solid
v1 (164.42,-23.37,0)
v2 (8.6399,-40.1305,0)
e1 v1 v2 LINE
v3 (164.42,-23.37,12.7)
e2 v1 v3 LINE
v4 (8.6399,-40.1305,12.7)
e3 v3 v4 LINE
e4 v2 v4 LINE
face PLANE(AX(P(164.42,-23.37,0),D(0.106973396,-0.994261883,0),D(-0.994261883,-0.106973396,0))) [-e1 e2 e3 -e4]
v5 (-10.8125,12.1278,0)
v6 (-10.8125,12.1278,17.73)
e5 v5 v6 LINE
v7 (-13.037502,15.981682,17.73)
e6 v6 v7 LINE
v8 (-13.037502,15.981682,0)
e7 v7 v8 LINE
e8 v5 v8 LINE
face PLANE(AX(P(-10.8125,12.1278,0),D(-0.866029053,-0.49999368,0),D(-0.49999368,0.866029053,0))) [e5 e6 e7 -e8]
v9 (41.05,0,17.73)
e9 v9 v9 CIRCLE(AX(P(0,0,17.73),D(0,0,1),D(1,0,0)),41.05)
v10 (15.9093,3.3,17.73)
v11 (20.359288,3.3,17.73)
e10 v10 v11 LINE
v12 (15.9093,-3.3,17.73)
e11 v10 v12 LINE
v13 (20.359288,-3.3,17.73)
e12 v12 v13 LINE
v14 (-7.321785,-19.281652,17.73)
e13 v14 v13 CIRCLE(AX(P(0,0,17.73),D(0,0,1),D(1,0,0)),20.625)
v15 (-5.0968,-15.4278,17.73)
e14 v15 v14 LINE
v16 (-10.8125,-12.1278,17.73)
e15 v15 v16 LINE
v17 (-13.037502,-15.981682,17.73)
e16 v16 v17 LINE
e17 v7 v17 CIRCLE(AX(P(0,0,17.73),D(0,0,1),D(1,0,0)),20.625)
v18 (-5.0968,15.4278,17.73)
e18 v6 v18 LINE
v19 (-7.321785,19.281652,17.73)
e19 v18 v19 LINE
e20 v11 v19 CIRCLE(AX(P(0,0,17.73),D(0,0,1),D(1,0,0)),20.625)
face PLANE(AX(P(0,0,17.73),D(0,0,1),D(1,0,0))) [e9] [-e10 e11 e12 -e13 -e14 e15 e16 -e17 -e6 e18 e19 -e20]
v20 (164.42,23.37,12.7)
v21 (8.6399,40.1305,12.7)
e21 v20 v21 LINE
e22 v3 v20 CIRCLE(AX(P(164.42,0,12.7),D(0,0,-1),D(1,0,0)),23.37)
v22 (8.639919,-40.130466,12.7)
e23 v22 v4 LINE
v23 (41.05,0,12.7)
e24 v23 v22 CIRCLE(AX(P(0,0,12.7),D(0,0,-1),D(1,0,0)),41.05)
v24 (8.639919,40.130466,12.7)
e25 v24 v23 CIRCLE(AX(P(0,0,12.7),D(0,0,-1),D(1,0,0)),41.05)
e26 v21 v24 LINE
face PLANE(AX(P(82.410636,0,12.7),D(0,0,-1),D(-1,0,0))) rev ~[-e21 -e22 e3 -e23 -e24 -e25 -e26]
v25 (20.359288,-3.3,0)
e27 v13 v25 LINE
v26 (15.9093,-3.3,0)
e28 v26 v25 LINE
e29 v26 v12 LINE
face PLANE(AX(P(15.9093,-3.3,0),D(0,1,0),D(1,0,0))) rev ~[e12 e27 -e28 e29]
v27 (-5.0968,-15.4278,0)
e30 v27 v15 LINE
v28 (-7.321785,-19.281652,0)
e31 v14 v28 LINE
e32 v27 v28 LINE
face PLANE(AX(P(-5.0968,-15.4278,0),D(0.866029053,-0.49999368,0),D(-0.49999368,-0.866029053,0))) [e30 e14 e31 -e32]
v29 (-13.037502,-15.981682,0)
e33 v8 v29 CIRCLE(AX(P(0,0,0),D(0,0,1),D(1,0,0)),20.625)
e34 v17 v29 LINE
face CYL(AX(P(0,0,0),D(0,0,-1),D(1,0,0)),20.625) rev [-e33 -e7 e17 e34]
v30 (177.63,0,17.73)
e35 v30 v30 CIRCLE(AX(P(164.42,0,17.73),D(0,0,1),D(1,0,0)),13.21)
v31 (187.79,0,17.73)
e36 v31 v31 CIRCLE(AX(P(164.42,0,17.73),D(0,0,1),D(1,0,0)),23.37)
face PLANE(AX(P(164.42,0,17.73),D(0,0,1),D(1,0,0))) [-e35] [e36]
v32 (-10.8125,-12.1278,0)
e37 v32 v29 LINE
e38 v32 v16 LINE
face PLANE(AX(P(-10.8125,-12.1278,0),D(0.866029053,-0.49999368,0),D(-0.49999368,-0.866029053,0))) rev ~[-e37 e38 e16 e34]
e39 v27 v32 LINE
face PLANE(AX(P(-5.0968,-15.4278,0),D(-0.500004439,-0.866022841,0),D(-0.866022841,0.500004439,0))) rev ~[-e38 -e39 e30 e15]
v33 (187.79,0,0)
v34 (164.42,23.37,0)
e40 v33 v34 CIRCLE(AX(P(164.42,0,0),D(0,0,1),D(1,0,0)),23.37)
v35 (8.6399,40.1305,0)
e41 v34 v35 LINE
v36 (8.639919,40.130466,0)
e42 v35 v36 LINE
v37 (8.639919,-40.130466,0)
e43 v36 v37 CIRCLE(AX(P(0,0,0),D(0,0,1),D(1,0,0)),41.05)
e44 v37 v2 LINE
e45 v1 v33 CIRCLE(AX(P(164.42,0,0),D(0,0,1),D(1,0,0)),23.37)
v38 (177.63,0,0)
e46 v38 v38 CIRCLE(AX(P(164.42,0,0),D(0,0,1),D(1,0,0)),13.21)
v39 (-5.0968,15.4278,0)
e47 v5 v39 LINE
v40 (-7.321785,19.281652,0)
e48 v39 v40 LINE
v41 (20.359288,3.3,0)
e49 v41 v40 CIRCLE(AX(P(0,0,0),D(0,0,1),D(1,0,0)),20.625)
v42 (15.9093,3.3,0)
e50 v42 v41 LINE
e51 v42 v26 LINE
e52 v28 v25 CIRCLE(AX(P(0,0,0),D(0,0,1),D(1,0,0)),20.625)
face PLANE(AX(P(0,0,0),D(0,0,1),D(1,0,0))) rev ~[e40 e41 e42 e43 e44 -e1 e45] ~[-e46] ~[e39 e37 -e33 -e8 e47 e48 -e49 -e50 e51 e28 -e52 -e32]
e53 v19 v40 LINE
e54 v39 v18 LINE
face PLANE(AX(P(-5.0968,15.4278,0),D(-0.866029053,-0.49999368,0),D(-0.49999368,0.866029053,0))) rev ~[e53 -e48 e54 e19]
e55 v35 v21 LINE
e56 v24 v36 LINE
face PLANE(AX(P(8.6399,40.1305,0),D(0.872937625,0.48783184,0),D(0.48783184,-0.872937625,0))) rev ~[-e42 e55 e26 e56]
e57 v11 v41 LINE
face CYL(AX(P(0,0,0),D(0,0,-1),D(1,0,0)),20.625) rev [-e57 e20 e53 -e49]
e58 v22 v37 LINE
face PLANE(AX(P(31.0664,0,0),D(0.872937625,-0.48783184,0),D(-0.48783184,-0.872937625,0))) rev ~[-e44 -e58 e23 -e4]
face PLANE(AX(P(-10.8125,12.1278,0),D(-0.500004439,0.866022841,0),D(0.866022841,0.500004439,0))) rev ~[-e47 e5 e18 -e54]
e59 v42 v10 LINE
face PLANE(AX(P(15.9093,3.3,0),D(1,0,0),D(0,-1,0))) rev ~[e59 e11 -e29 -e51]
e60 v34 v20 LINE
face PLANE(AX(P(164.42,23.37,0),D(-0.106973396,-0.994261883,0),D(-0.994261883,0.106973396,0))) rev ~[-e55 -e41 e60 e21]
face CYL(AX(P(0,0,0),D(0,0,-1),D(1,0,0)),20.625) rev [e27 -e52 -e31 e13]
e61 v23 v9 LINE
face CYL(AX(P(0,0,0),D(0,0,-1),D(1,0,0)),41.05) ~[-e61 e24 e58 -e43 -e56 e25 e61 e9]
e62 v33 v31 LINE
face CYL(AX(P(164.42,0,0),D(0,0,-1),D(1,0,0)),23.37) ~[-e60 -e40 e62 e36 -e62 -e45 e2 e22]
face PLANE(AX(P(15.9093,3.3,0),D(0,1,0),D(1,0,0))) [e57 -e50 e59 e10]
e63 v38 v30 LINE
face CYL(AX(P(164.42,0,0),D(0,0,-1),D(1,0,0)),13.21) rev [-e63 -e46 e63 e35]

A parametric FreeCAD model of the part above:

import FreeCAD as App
import Part
import Sketcher
Q = App.Units.Quantity


def add_polygon(sketch, points):
    """Adds a closed chain of lines whose ends are joined by coincident constraints."""
    first, n = sketch.GeometryCount, len(points)
    for a, b in zip(points, points[1:] + points[:1]):
        sketch.addGeometry(Part.LineSegment(App.Vector(*a, 0), App.Vector(*b, 0)), False)
    for i in range(n):
        sketch.addConstraint(Sketcher.Constraint("Coincident", first + i, 2, first + (i + 1) % n, 1))

doc = App.newDocument("Part")
body = doc.addObject("PartDesign::Body", "Body")
body.AllowCompound = True

# Sketch on XY plane
sketch1 = doc.addObject("Sketcher::SketchObject", "Sketch")
body.addObject(sketch1)
sketch1.AttachmentSupport = (doc.XY_Plane, [""])
sketch1.MapMode = "FlatFace"
sketch1.addGeometry([
    Part.Circle(App.Vector(0, 0, 0), App.Vector(0, 0, 1), 41.05),
    Part.Circle(App.Vector(0, 0, 0), App.Vector(0, 0, 1), 20.625),
    Part.Circle(App.Vector(164.42, 0, 0), App.Vector(0, 0, 1), 23.37),
    Part.Circle(App.Vector(164.42, 0, 0), App.Vector(0, 0, 1), 13.21),
], False)
sketch1.addConstraint([
    Sketcher.Constraint("Coincident", 0, 3, -1, 1),
    Sketcher.Constraint("Coincident", 1, 3, -1, 1),
    Sketcher.Constraint("Coincident", 3, 3, 2, 3),
    Sketcher.Constraint("PointOnObject", 2, 3, -1),
    Sketcher.Constraint("Diameter", 0, 82.1),
    Sketcher.Constraint("Diameter", 1, 41.25),
    Sketcher.Constraint("Diameter", 2, 46.74),
    Sketcher.Constraint("Diameter", 3, 26.42),
    Sketcher.Constraint("DistanceX", -1, 1, 2, 3, 164.42),
])
pad1 = doc.addObject("PartDesign::Pad", "Pad")
body.addObject(pad1)
pad1.Profile = sketch1
pad1.Length = 17.73

# Sketch on XY plane
sketch2 = doc.addObject("Sketcher::SketchObject", "Sketch001")
body.addObject(sketch2)
sketch2.AttachmentSupport = (doc.XY_Plane, [""])
sketch2.MapMode = "FlatFace"
add_polygon(sketch2, [(8.6399, -40.1305), (164.42, -23.37), (143.9301, 0), (164.42, 23.37), (8.6399, 40.1305), (31.0664, 0)])  # lines 0-5
sketch2.addConstraint([
    Sketcher.Constraint("Symmetric", 0, 2, 2, 2, -1),
    Sketcher.Constraint("Symmetric", 3, 2, 5, 2, -1),
    Sketcher.Constraint("PointOnObject", 1, 2, -1),
    Sketcher.Constraint("PointOnObject", 4, 2, -1),
    Sketcher.Constraint("Angle", 0, Q("6.1409 deg")),
    Sketcher.Constraint("DistanceX", -1, 1, 0, 2, 164.42),
    Sketcher.Constraint("DistanceY", 0, 2, -1, 1, 23.37),
    Sketcher.Constraint("DistanceX", -1, 1, 1, 2, 143.93),
    Sketcher.Constraint("DistanceX", -1, 1, 3, 2, 8.64),
    Sketcher.Constraint("Distance", 4, 45.9718),
])
pad2 = doc.addObject("PartDesign::Pad", "Pad001")
body.addObject(pad2)
pad2.Profile = sketch2
pad2.Length = 12.7

# Sketch on XY plane
sketch3 = doc.addObject("Sketcher::SketchObject", "Sketch002")
body.addObject(sketch3)
sketch3.AttachmentSupport = (doc.XY_Plane, [""])
sketch3.MapMode = "FlatFace"
add_polygon(sketch3, [(-7.5968, -19.758), (-5.0968, -15.4278), (-10.8125, -12.1278), (-13.3125, -16.458)])  # lines 0-3
add_polygon(sketch3, [(-13.3125, 16.458), (-10.8125, 12.1278), (-5.0968, 15.4278), (-7.5968, 19.758)])  # lines 4-7
add_polygon(sketch3, [(15.9093, 3.3), (15.9093, -3.3), (20.9093, -3.3), (20.9093, 3.3)])  # lines 8-11
sketch3.addConstraint([
    Sketcher.Constraint("Vertical", 8),
    Sketcher.Constraint("Horizontal", 9),
    Sketcher.Constraint("Vertical", 10),
    Sketcher.Constraint("Horizontal", 11),
    Sketcher.Constraint("Symmetric", 1, 2, 4, 2, -1),
    Sketcher.Constraint("Symmetric", 0, 2, 5, 2, -1),
    Sketcher.Constraint("Symmetric", 3, 2, 6, 2, -1),
    Sketcher.Constraint("Symmetric", 2, 2, 7, 2, -1),
    Sketcher.Constraint("Perpendicular", 0, 1),
    Sketcher.Constraint("Perpendicular", 1, 2),
    Sketcher.Constraint("Perpendicular", 2, 3),
    Sketcher.Constraint("DistanceX", 9, 1, 9, 2, 5.0),
    Sketcher.Constraint("Angle", 0, Q("60.0004 deg")),
    Sketcher.Constraint("Distance", 0, 5.0),
    Sketcher.Constraint("DistanceY", 8, 2, 8, 1, 6.6),
    Sketcher.Constraint("Distance", 1, 6.6),
    Sketcher.Constraint("DistanceY", 8, 2, -1, 1, 3.3),
    Sketcher.Constraint("DistanceY", 2, 2, -1, 1, 16.458),
    Sketcher.Constraint("DistanceX", 0, 2, 8, 2, 21.006),
    Sketcher.Constraint("DistanceX", 0, 2, -1, 1, 5.0968),
])
pad3 = doc.addObject("PartDesign::Pad", "Pad002")
body.addObject(pad3)
pad3.Profile = sketch3
pad3.Length = 17.73

doc.recompute()
